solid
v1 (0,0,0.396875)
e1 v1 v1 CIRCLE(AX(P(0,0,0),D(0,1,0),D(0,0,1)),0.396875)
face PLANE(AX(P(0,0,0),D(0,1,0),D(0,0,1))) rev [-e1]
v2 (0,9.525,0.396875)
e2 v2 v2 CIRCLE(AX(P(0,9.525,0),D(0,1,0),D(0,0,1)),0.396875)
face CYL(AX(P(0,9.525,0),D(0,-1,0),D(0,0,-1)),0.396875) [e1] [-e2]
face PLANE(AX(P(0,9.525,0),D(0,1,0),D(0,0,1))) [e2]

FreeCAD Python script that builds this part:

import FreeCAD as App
import Part
import Sketcher
Q = App.Units.Quantity

doc = App.newDocument("Part")
body = doc.addObject("PartDesign::Body", "Body")

# Sketch on XZ plane
sketch1 = body.newObject("Sketcher::SketchObject", "Sketch")
sketch1.AttachmentSupport = (doc.getObject("XZ_Plane"), [""])
sketch1.MapMode = "FlatFace"
sketch1.addGeometry(Part.Circle(App.Vector(0, 0, 0), App.Vector(0, 0, 1), 0.4), False)
sketch1.addConstraint(Sketcher.Constraint("Coincident", 0, 3, -1, 1))
sketch1.addConstraint(Sketcher.Constraint("Diameter", 0, Q("0.03125 in")))
pad1 = body.newObject("PartDesign::Pad", "Pad")
pad1.Profile = sketch1
pad1.Length = Q("0.375 in")
pad1.Reversed = True

doc.recompute()
